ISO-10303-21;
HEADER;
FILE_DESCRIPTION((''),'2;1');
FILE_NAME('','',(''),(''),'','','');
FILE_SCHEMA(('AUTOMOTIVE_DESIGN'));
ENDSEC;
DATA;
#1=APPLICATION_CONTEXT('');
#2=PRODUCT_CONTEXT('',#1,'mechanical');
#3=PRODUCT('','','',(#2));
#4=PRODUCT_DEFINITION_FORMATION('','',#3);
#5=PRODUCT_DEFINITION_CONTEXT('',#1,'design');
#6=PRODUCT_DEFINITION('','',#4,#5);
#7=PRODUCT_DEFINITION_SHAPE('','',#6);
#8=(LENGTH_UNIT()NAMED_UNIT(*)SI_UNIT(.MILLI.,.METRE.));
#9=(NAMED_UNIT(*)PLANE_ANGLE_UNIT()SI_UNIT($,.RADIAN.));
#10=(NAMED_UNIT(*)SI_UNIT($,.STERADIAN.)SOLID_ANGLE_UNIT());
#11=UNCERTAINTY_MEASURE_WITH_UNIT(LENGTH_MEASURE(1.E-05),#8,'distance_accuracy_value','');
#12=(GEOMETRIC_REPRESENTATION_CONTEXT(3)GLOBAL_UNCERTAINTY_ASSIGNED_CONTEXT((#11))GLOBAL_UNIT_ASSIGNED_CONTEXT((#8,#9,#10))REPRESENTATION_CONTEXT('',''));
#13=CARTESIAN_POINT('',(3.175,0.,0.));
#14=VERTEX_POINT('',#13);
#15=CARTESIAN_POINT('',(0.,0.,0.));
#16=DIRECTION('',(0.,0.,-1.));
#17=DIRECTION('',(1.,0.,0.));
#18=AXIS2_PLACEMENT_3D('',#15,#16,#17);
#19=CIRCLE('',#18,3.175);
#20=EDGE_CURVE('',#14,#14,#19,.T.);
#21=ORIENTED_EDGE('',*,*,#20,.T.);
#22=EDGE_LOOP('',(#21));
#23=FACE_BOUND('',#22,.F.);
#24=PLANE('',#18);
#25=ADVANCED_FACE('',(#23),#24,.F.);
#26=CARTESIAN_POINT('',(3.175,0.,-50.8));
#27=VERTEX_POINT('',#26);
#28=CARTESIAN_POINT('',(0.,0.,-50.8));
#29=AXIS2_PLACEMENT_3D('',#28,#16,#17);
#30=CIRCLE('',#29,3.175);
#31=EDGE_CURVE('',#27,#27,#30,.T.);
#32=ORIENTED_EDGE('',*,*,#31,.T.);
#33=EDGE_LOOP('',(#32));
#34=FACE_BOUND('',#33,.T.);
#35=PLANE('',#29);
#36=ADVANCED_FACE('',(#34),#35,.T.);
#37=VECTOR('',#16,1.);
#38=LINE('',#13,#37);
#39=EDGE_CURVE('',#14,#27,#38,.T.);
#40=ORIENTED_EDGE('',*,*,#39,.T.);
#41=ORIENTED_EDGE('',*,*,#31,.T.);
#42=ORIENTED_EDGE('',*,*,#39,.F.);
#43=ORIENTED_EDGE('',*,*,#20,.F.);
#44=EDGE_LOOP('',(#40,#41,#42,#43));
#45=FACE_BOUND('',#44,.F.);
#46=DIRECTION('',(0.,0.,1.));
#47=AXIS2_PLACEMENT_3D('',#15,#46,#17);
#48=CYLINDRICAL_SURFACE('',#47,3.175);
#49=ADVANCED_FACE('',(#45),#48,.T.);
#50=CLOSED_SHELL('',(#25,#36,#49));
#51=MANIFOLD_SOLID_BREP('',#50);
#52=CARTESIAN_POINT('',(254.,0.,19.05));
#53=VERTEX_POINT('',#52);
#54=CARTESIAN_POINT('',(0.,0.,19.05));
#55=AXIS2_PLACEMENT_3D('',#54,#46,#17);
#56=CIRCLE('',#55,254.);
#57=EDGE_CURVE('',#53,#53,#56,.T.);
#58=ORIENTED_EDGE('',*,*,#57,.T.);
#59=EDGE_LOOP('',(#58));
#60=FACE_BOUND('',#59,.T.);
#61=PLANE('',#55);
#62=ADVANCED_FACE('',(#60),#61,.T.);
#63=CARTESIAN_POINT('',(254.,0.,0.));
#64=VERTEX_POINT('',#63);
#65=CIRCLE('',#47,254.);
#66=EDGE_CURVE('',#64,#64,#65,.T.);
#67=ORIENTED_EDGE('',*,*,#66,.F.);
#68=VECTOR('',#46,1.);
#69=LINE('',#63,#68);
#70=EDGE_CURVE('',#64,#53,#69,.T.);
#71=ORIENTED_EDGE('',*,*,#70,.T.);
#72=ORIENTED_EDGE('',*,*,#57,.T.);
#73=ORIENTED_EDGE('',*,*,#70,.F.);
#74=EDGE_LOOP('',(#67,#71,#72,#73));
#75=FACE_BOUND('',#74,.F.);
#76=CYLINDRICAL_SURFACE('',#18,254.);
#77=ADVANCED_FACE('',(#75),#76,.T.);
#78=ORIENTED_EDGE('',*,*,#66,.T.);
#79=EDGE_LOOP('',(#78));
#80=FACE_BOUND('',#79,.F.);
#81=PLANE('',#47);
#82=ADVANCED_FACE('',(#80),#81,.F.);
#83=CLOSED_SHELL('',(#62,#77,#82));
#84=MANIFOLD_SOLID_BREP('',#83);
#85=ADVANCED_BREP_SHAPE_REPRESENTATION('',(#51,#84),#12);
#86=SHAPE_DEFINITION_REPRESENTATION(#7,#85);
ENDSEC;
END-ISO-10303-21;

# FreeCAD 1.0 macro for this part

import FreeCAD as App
import Part
import Sketcher
from FreeCAD import Vector
Q = App.Units.Quantity

doc = App.newDocument("Part")
body = doc.addObject("PartDesign::Body", "Body")

# Sketch on XY plane
sketch1 = body.newObject("Sketcher::SketchObject", "Sketch")
sketch1.AttachmentSupport = (doc.getObject("XY_Plane"), [""])
sketch1.MapMode = "FlatFace"
sketch1.addGeometry(Part.Circle(Vector(0, 0, 0), Vector(0, 0, 1), 254), False)
sketch1.addConstraint(Sketcher.Constraint("Coincident", 0, 3, -1, 1))
sketch1.addConstraint(Sketcher.Constraint("Diameter", 0, Q("20 in")))
pad1 = body.newObject("PartDesign::Pad", "Pad")
pad1.Profile = sketch1
pad1.Length = Q("0.75 in")
body2 = doc.addObject("PartDesign::Body", "Body001")

# Sketch on XY plane
sketch2 = body2.newObject("Sketcher::SketchObject", "Sketch001")
sketch2.AttachmentSupport = (doc.getObject("XY_Plane001"), [""])
sketch2.MapMode = "FlatFace"
sketch2.addGeometry(Part.Circle(Vector(0, 0, 0), Vector(0, 0, 1), 3.175), False)
sketch2.addConstraint(Sketcher.Constraint("Coincident", 0, 3, -1, 1))
sketch2.addConstraint(Sketcher.Constraint("Diameter", 0, Q("0.25 in")))
pad2 = body2.newObject("PartDesign::Pad", "Pad001")
pad2.Profile = sketch2
pad2.Length = Q("2 in")
pad2.Reversed = True

doc.recompute()
